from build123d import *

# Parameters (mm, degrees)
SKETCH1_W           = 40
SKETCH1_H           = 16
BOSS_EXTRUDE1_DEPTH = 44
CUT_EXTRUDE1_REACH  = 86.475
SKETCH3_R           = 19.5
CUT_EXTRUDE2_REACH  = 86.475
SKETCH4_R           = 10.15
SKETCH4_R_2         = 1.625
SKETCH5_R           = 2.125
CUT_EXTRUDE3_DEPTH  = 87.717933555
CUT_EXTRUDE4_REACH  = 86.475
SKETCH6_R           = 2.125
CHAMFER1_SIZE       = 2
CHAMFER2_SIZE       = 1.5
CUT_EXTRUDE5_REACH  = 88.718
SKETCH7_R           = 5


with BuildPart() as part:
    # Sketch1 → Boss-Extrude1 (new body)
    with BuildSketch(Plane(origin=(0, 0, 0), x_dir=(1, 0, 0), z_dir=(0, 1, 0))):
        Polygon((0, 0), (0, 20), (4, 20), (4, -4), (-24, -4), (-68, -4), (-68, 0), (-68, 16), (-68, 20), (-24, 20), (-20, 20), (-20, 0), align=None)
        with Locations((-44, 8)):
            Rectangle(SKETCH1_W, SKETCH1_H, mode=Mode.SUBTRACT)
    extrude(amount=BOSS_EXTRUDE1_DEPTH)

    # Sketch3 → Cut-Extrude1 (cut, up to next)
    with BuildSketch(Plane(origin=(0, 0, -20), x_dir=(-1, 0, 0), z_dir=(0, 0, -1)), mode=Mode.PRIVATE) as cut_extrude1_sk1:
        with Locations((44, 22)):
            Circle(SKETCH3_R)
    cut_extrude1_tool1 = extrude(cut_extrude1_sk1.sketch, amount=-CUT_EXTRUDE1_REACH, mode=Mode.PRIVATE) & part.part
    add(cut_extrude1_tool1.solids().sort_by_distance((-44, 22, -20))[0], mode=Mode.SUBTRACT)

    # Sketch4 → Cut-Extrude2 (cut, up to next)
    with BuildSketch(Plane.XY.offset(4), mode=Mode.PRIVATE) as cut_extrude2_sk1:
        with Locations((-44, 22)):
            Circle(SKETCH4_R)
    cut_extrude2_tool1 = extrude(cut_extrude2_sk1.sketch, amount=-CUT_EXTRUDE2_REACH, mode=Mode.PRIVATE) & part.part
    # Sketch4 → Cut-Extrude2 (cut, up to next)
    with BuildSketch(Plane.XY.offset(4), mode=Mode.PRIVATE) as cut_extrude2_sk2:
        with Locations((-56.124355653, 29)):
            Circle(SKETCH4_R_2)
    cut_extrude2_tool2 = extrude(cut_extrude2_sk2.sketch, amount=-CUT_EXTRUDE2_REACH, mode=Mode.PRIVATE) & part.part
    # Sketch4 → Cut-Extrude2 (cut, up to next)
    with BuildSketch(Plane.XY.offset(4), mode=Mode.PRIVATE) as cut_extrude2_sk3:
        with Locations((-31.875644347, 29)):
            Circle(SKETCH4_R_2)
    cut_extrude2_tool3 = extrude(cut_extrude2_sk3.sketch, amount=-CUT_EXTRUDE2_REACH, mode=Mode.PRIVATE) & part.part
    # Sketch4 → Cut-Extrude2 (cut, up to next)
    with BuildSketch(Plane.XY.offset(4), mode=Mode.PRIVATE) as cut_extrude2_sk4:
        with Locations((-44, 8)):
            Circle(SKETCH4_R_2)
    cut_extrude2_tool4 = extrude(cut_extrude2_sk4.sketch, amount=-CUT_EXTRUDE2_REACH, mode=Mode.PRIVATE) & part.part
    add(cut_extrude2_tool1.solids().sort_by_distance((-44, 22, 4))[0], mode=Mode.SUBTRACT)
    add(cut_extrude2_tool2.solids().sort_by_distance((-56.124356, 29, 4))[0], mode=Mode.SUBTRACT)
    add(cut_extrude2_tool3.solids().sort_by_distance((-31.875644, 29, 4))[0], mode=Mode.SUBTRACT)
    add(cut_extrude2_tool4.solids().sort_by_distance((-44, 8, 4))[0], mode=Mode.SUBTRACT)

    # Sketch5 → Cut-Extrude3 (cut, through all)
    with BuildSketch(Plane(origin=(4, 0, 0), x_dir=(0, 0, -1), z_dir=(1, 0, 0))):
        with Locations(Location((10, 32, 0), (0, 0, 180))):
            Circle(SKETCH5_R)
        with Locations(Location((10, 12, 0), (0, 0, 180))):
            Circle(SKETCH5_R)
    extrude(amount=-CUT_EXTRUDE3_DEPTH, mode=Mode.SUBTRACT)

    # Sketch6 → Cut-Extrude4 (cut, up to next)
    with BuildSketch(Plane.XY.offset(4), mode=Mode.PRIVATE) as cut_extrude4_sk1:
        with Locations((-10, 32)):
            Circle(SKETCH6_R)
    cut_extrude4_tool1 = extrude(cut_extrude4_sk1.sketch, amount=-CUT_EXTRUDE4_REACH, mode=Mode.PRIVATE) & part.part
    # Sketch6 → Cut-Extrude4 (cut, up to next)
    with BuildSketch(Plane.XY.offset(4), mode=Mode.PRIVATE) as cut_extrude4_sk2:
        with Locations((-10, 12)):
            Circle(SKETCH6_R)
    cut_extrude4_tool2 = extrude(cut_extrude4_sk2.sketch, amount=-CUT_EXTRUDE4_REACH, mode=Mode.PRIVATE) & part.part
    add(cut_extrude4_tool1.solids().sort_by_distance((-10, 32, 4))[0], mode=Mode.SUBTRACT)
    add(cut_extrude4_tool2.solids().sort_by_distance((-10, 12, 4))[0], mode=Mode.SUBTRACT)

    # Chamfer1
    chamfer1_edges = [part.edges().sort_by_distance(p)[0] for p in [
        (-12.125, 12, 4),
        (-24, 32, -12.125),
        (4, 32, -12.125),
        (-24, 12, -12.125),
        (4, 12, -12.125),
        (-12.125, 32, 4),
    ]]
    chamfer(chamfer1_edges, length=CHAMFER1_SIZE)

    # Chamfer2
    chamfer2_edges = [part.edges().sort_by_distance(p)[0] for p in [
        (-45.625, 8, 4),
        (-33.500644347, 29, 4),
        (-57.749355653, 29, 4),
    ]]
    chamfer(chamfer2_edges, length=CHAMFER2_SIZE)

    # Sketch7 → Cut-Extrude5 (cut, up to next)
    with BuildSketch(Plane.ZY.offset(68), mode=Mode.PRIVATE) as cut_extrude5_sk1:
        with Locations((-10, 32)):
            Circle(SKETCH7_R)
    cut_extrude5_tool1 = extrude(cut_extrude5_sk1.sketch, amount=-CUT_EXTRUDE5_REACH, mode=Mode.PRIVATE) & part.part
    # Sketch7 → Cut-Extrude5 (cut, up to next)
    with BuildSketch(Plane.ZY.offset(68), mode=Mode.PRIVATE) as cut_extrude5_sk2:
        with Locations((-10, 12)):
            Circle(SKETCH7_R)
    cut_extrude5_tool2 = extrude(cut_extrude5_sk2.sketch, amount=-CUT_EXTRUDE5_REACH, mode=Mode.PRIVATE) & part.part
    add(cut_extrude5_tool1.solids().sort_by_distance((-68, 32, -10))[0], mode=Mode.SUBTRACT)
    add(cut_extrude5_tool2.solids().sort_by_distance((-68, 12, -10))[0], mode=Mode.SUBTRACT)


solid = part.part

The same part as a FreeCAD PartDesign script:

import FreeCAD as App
import Part
import Sketcher


def edges_at(feature, points):
    """Names of the edges that pass closest to the given points."""
    edges = feature.Shape.Edges
    near = lambda p: min(range(len(edges)), key=lambda i: edges[i].distToShape(Part.Vertex(*p))[0])
    return sorted({f"Edge{near(p) + 1}" for p in points})


def add_polygon(sketch, points):
    """Adds a closed chain of lines whose ends are joined by coincident constraints."""
    first, n = sketch.GeometryCount, len(points)
    for a, b in zip(points, points[1:] + points[:1]):
        sketch.addGeometry(Part.LineSegment(App.Vector(*a, 0), App.Vector(*b, 0)), False)
    for i in range(n):
        sketch.addConstraint(Sketcher.Constraint("Coincident", first + i, 2, first + (i + 1) % n, 1))

doc = App.newDocument("Part")
params = doc.addObject("Spreadsheet::Sheet", "Params")
for row, (alias, value) in enumerate([
    ("sketch1_width", "20 mm"),
    ("sketch1_width2", "48 mm"),
    ("sketch1_width3", "72 mm"),
    ("sketch1_width4", "40 mm"),
    ("sketch1_height", "24 mm"),
    ("pad1_length", "44 mm"),
    ("sketch2_diameter", "39 mm"),
    ("sketch3_diameter", "20.3 mm"),
    ("sketch4_diameter", "3.25 mm"),
    ("sketch5_diameter", "3.25 mm"),
    ("sketch6_diameter", "3.25 mm"),
    ("sketch7_diameter", "4.25 mm"),
    ("sketch8_diameter", "4.25 mm"),
    ("sketch9_diameter", "4.25 mm"),
    ("chamfer_size", "2 mm"),
    ("chamfer2_size", "1.5 mm"),
    ("sketch10_diameter", "10 mm"),
    ("pocket9_length", "4 mm"),
    ("sketch11_diameter", "10 mm"),
    ("pocket10_length", "4 mm"),
], start=1):
    params.set(f"A{row}", alias)
    params.set(f"B{row}", "=" + value)
    params.setAlias(f"B{row}", alias)

body = doc.addObject("PartDesign::Body", "Body")

# Sketch on XZ plane
sketch1 = body.newObject("Sketcher::SketchObject", "Sketch")
sketch1.AttachmentSupport = (doc.getObject("XZ_Plane"), [""])
sketch1.MapMode = "FlatFace"
add_polygon(sketch1, [(0, -20), (0, 0), (-20, 0), (-20, -20), (-68, -20), (-68, 4), (4, 4), (4, -20)])  # lines 0-7
add_polygon(sketch1, [(-64, 0), (-64, -16), (-24, -16), (-24, 0)])  # lines 8-11
sketch1.addConstraint(Sketcher.Constraint("Vertical", 0))
sketch1.addConstraint(Sketcher.Constraint("Horizontal", 1))
sketch1.addConstraint(Sketcher.Constraint("Vertical", 2))
sketch1.addConstraint(Sketcher.Constraint("Horizontal", 3))
sketch1.addConstraint(Sketcher.Constraint("Vertical", 4))
sketch1.addConstraint(Sketcher.Constraint("Horizontal", 5))
sketch1.addConstraint(Sketcher.Constraint("Vertical", 6))
sketch1.addConstraint(Sketcher.Constraint("Horizontal", 7))
sketch1.addConstraint(Sketcher.Constraint("Vertical", 8))
sketch1.addConstraint(Sketcher.Constraint("Horizontal", 9))
sketch1.addConstraint(Sketcher.Constraint("Vertical", 10))
sketch1.addConstraint(Sketcher.Constraint("Horizontal", 11))
sketch1.addConstraint(Sketcher.Constraint("Coincident", 0, 2, -1, 1))
sketch1.addConstraint(Sketcher.Constraint("PointOnObject", 10, 2, -1))
sketch1.addConstraint(Sketcher.Constraint("Horizontal", 3, 2, 6, 2))
sketch1.addConstraint(Sketcher.Constraint("Equal", 1, 0))
sketch1.addConstraint(Sketcher.Constraint("DistanceX", 1, 2, 1, 1, 20.0))
sketch1.addConstraint(Sketcher.Constraint("DistanceX", 3, 2, 3, 1, 48.0))
sketch1.addConstraint(Sketcher.Constraint("DistanceX", 5, 1, 5, 2, 72.0))
sketch1.addConstraint(Sketcher.Constraint("DistanceX", 9, 1, 9, 2, 40.0))
sketch1.addConstraint(Sketcher.Constraint("DistanceY", 4, 1, 4, 2, 24.0))
sketch1.addConstraint(Sketcher.Constraint("DistanceY", 8, 2, 8, 1, 16.0))
sketch1.addConstraint(Sketcher.Constraint("DistanceX", 8, 2, -1, 1, 64.0))
sketch1.setExpression("Constraints[28]", "Params.sketch1_width")
sketch1.setExpression("Constraints[29]", "Params.sketch1_width2")
sketch1.setExpression("Constraints[30]", "Params.sketch1_width3")
sketch1.setExpression("Constraints[31]", "Params.sketch1_width4")
sketch1.setExpression("Constraints[32]", "Params.sketch1_height")
pad1 = body.newObject("PartDesign::Pad", "Pad")
pad1.Profile = sketch1
pad1.setExpression("Length", "Params.pad1_length")
pad1.Reversed = True

# Sketch on XY plane
sketch2 = body.newObject("Sketcher::SketchObject", "Sketch001")
sketch2.AttachmentSupport = (doc.getObject("XY_Plane"), [""])
sketch2.MapMode = "FlatFace"
sketch2.AttachmentOffset = App.Placement(App.Vector(0, 0, -20), App.Rotation())
sketch2.addGeometry(Part.Circle(App.Vector(-44, 22, 0), App.Vector(0, 0, 1), 19.5), False)
sketch2.addConstraint(Sketcher.Constraint("Diameter", 0, 39.0))
sketch2.addConstraint(Sketcher.Constraint("DistanceX", 0, 3, -1, 1, 44.0))
sketch2.addConstraint(Sketcher.Constraint("DistanceY", -1, 1, 0, 3, 22.0))
sketch2.setExpression("Constraints[0]", "Params.sketch2_diameter")
pocket1 = body.newObject("PartDesign::Pocket", "Pocket")
pocket1.Profile = sketch2
pocket1.Type = "UpToFirst"
pocket1.Reversed = True

# Sketch on XY plane
sketch3 = body.newObject("Sketcher::SketchObject", "Sketch002")
sketch3.AttachmentSupport = (doc.getObject("XY_Plane"), [""])
sketch3.MapMode = "FlatFace"
sketch3.AttachmentOffset = App.Placement(App.Vector(0, 0, 4), App.Rotation())
sketch3.addGeometry(Part.Circle(App.Vector(-44, 22, 0), App.Vector(0, 0, 1), 10.15), False)
sketch3.addConstraint(Sketcher.Constraint("Diameter", 0, 20.3))
sketch3.addConstraint(Sketcher.Constraint("DistanceX", 0, 3, -1, 1, 44.0))
sketch3.addConstraint(Sketcher.Constraint("DistanceY", -1, 1, 0, 3, 22.0))
sketch3.setExpression("Constraints[0]", "Params.sketch3_diameter")
pocket2 = body.newObject("PartDesign::Pocket", "Pocket001")
pocket2.Profile = sketch3
pocket2.Type = "UpToFirst"

# Sketch on XY plane
sketch4 = body.newObject("Sketcher::SketchObject", "Sketch003")
sketch4.AttachmentSupport = (doc.getObject("XY_Plane"), [""])
sketch4.MapMode = "FlatFace"
sketch4.AttachmentOffset = App.Placement(App.Vector(0, 0, 4), App.Rotation())
sketch4.addGeometry(Part.Circle(App.Vector(-56.124356, 29, 0), App.Vector(0, 0, 1), 1.625), False)
sketch4.addConstraint(Sketcher.Constraint("Diameter", 0, 3.25))
sketch4.addConstraint(Sketcher.Constraint("DistanceY", -1, 1, 0, 3, 29.0))
sketch4.addConstraint(Sketcher.Constraint("DistanceX", 0, 3, -1, 1, 56.124356))
sketch4.setExpression("Constraints[0]", "Params.sketch4_diameter")
pocket3 = body.newObject("PartDesign::Pocket", "Pocket002")
pocket3.Profile = sketch4
pocket3.Type = "UpToFirst"

# Sketch on XY plane
sketch5 = body.newObject("Sketcher::SketchObject", "Sketch004")
sketch5.AttachmentSupport = (doc.getObject("XY_Plane"), [""])
sketch5.MapMode = "FlatFace"
sketch5.AttachmentOffset = App.Placement(App.Vector(0, 0, 4), App.Rotation())
sketch5.addGeometry(Part.Circle(App.Vector(-31.875644, 29, 0), App.Vector(0, 0, 1), 1.625), False)
sketch5.addConstraint(Sketcher.Constraint("Diameter", 0, 3.25))
sketch5.addConstraint(Sketcher.Constraint("DistanceY", -1, 1, 0, 3, 29.0))
sketch5.addConstraint(Sketcher.Constraint("DistanceX", 0, 3, -1, 1, 31.875644))
sketch5.setExpression("Constraints[0]", "Params.sketch5_diameter")
pocket4 = body.newObject("PartDesign::Pocket", "Pocket003")
pocket4.Profile = sketch5
pocket4.Type = "UpToFirst"

# Sketch on XY plane
sketch6 = body.newObject("Sketcher::SketchObject", "Sketch005")
sketch6.AttachmentSupport = (doc.getObject("XY_Plane"), [""])
sketch6.MapMode = "FlatFace"
sketch6.AttachmentOffset = App.Placement(App.Vector(0, 0, 4), App.Rotation())
sketch6.addGeometry(Part.Circle(App.Vector(-44, 8, 0), App.Vector(0, 0, 1), 1.625), False)
sketch6.addConstraint(Sketcher.Constraint("Diameter", 0, 3.25))
sketch6.addConstraint(Sketcher.Constraint("DistanceX", 0, 3, -1, 1, 44.0))
sketch6.addConstraint(Sketcher.Constraint("DistanceY", -1, 1, 0, 3, 8.0))
sketch6.setExpression("Constraints[0]", "Params.sketch6_diameter")
pocket5 = body.newObject("PartDesign::Pocket", "Pocket004")
pocket5.Profile = sketch6
pocket5.Type = "UpToFirst"

# Sketch on YZ plane
sketch7 = body.newObject("Sketcher::SketchObject", "Sketch006")
sketch7.AttachmentSupport = (doc.getObject("YZ_Plane"), [""])
sketch7.MapMode = "FlatFace"
sketch7.AttachmentOffset = App.Placement(App.Vector(0, 0, 4), App.Rotation())
sketch7.addGeometry(Part.Circle(App.Vector(32, -10, 0), App.Vector(0, 0, 1), 2.125), False)
sketch7.addGeometry(Part.Circle(App.Vector(12, -10, 0), App.Vector(0, 0, 1), 2.125), False)
sketch7.addConstraint(Sketcher.Constraint("Equal", 0, 1))
sketch7.addConstraint(Sketcher.Constraint("Horizontal", 0, 3, 1, 3))
sketch7.addConstraint(Sketcher.Constraint("Diameter", 0, 4.25))
sketch7.addConstraint(Sketcher.Constraint("DistanceX", -1, 1, 0, 3, 32.0))
sketch7.addConstraint(Sketcher.Constraint("DistanceY", 0, 3, -1, 1, 10.0))
sketch7.addConstraint(Sketcher.Constraint("DistanceX", -1, 1, 1, 3, 12.0))
sketch7.setExpression("Constraints[2]", "Params.sketch7_diameter")
pocket6 = body.newObject("PartDesign::Pocket", "Pocket005")
pocket6.Profile = sketch7
pocket6.Type = "ThroughAll"

# Sketch on XY plane
sketch8 = body.newObject("Sketcher::SketchObject", "Sketch007")
sketch8.AttachmentSupport = (doc.getObject("XY_Plane"), [""])
sketch8.MapMode = "FlatFace"
sketch8.AttachmentOffset = App.Placement(App.Vector(0, 0, 4), App.Rotation())
sketch8.addGeometry(Part.Circle(App.Vector(-10, 32, 0), App.Vector(0, 0, 1), 2.125), False)
sketch8.addConstraint(Sketcher.Constraint("Diameter", 0, 4.25))
sketch8.addConstraint(Sketcher.Constraint("DistanceX", 0, 3, -1, 1, 10.0))
sketch8.addConstraint(Sketcher.Constraint("DistanceY", -1, 1, 0, 3, 32.0))
sketch8.setExpression("Constraints[0]", "Params.sketch8_diameter")
pocket7 = body.newObject("PartDesign::Pocket", "Pocket006")
pocket7.Profile = sketch8
pocket7.Type = "UpToFirst"

# Sketch on XY plane
sketch9 = body.newObject("Sketcher::SketchObject", "Sketch008")
sketch9.AttachmentSupport = (doc.getObject("XY_Plane"), [""])
sketch9.MapMode = "FlatFace"
sketch9.AttachmentOffset = App.Placement(App.Vector(0, 0, 4), App.Rotation())
sketch9.addGeometry(Part.Circle(App.Vector(-10, 12, 0), App.Vector(0, 0, 1), 2.125), False)
sketch9.addConstraint(Sketcher.Constraint("Diameter", 0, 4.25))
sketch9.addConstraint(Sketcher.Constraint("DistanceX", 0, 3, -1, 1, 10.0))
sketch9.addConstraint(Sketcher.Constraint("DistanceY", -1, 1, 0, 3, 12.0))
sketch9.setExpression("Constraints[0]", "Params.sketch9_diameter")
pocket8 = body.newObject("PartDesign::Pocket", "Pocket007")
pocket8.Profile = sketch9
pocket8.Type = "UpToFirst"
doc.recompute()

chamfer = body.newObject("PartDesign::Chamfer", "Chamfer")
chamfer.Base = (pocket8, edges_at(pocket8, [
    (-12.125, 12, 4),
    (-24, 32, -12.125),
    (4, 32, -12.125),
    (-24, 12, -12.125),
    (4, 12, -12.125),
    (-12.125, 32, 4),
]))
chamfer.setExpression("Size", "Params.chamfer_size")
doc.recompute()

chamfer2 = body.newObject("PartDesign::Chamfer", "Chamfer001")
chamfer2.Base = (chamfer, edges_at(chamfer, [(-45.625, 8, 4), (-33.501, 29, 4), (-57.749, 29, 4)]))
chamfer2.setExpression("Size", "Params.chamfer2_size")

# Sketch on YZ plane
sketch10 = body.newObject("Sketcher::SketchObject", "Sketch009")
sketch10.AttachmentSupport = (doc.getObject("YZ_Plane"), [""])
sketch10.MapMode = "FlatFace"
sketch10.AttachmentOffset = App.Placement(App.Vector(0, 0, -68), App.Rotation())
sketch10.addGeometry(Part.Circle(App.Vector(32, -10, 0), App.Vector(0, 0, 1), 5), False)
sketch10.addConstraint(Sketcher.Constraint("Diameter", 0, 10.0))
sketch10.addConstraint(Sketcher.Constraint("DistanceX", -1, 1, 0, 3, 32.0))
sketch10.addConstraint(Sketcher.Constraint("DistanceY", 0, 3, -1, 1, 10.0))
sketch10.setExpression("Constraints[0]", "Params.sketch10_diameter")
pocket9 = body.newObject("PartDesign::Pocket", "Pocket008")
pocket9.Profile = sketch10
pocket9.setExpression("Length", "Params.pocket9_length")
pocket9.Reversed = True

# Sketch on YZ plane
sketch11 = body.newObject("Sketcher::SketchObject", "Sketch010")
sketch11.AttachmentSupport = (doc.getObject("YZ_Plane"), [""])
sketch11.MapMode = "FlatFace"
sketch11.AttachmentOffset = App.Placement(App.Vector(0, 0, -68), App.Rotation())
sketch11.addGeometry(Part.Circle(App.Vector(12, -10, 0), App.Vector(0, 0, 1), 5), False)
sketch11.addConstraint(Sketcher.Constraint("Diameter", 0, 10.0))
sketch11.addConstraint(Sketcher.Constraint("DistanceX", -1, 1, 0, 3, 12.0))
sketch11.addConstraint(Sketcher.Constraint("DistanceY", 0, 3, -1, 1, 10.0))
sketch11.setExpression("Constraints[0]", "Params.sketch11_diameter")
pocket10 = body.newObject("PartDesign::Pocket", "Pocket009")
pocket10.Profile = sketch11
pocket10.setExpression("Length", "Params.pocket10_length")
pocket10.Reversed = True

doc.recompute()
